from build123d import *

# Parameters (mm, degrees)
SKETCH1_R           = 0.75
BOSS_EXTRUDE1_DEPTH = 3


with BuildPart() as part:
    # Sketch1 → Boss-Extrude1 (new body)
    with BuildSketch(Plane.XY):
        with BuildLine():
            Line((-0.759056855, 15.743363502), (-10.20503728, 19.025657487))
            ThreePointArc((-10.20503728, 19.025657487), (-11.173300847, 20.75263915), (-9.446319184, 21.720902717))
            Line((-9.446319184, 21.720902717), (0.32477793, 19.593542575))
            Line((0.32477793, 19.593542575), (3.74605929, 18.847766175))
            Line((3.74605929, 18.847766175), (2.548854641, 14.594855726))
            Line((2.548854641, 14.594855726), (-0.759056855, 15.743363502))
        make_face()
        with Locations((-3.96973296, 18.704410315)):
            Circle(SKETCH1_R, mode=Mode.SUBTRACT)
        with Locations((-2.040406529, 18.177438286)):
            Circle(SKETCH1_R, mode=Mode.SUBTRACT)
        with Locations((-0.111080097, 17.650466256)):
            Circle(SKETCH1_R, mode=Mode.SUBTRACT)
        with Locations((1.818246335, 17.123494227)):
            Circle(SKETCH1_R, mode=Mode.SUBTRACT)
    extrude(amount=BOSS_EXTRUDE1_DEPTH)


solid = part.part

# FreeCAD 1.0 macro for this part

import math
import FreeCAD as App
import Part
import Sketcher
Q = App.Units.Quantity

doc = App.newDocument("Part")
body = doc.addObject("PartDesign::Body", "Body")

# Sketch on XY plane
sketch1 = body.newObject("Sketcher::SketchObject", "Sketch")
sketch1.AttachmentSupport = (doc.getObject("XY_Plane"), [""])
sketch1.MapMode = "FlatFace"
sketch1.addGeometry([
    Part.LineSegment(App.Vector(-10.205037, 19.025657, 0), App.Vector(-0.759057, 15.743364, 0)),  # 0
    Part.LineSegment(App.Vector(-0.759057, 15.743364, 0), App.Vector(2.548855, 14.594856, 0)),  # 1
    Part.LineSegment(App.Vector(2.548855, 14.594856, 0), App.Vector(3.746059, 18.847766, 0)),  # 2
    Part.LineSegment(App.Vector(3.746059, 18.847766, 0), App.Vector(0.324778, 19.593543, 0)),  # 3
    Part.LineSegment(App.Vector(0.324778, 19.593543, 0), App.Vector(-9.446319, 21.720903, 0)),  # 4
    Part.ArcOfCircle(Part.Circle(App.Vector(-9.825678, 20.37328, 0), App.Vector(0, 0, 1), 1.4), math.radians(74.27796), math.radians(254.27796)),  # 5
    Part.Circle(App.Vector(1.818246, 17.123494, 0), App.Vector(0, 0, 1), 0.75),  # 6
    Part.Circle(App.Vector(-0.11108, 17.650466, 0), App.Vector(0, 0, 1), 0.75),  # 7
    Part.Circle(App.Vector(-2.040407, 18.177438, 0), App.Vector(0, 0, 1), 0.75),  # 8
    Part.Circle(App.Vector(-3.969733, 18.70441, 0), App.Vector(0, 0, 1), 0.75),  # 9
], False)
sketch1.addConstraint([
    Sketcher.Constraint("Coincident", 0, 2, 1, 1),
    Sketcher.Constraint("Coincident", 1, 2, 2, 1),
    Sketcher.Constraint("Coincident", 2, 2, 3, 1),
    Sketcher.Constraint("Coincident", 3, 2, 4, 1),
    Sketcher.Constraint("Coincident", 4, 2, 5, 1),
    Sketcher.Constraint("Coincident", 5, 2, 0, 1),
    Sketcher.Constraint("Equal", 6, 7),
    Sketcher.Constraint("Equal", 7, 8),
    Sketcher.Constraint("Equal", 8, 9),
    Sketcher.Constraint("Equal", 1, 3),
    Sketcher.Constraint("Equal", 0, 4),
    Sketcher.Constraint("Diameter", 6, Q("1.5 mm")),
    Sketcher.Constraint("Radius", 5, Q("1.4 mm")),
    Sketcher.Constraint("Distance", 0, Q("10 mm")),
    Sketcher.Constraint("DistanceX", 5, 3, 7, 3, Q("9.714598 mm")),
    Sketcher.Constraint("DistanceY", 7, 3, 2, 2, Q("1.1973 mm")),
    Sketcher.Constraint("Distance", 1, Q("3.501621 mm")),
    Sketcher.Constraint("DistanceX", 5, 3, -1, 1, Q("9.825678 mm")),
    Sketcher.Constraint("DistanceY", -1, 1, 5, 3, Q("20.37328 mm")),
    Sketcher.Constraint("DistanceY", -1, 1, 8, 3, Q("18.177438 mm")),
    Sketcher.Constraint("DistanceY", -1, 1, 9, 3, Q("18.70441 mm")),
    Sketcher.Constraint("DistanceX", -1, 1, 2, 2, Q("3.746059 mm")),
    Sketcher.Constraint("DistanceX", 4, 2, -1, 1, Q("9.446319 mm")),
    Sketcher.Constraint("DistanceX", 5, 3, 8, 3, Q("7.785272 mm")),
    Sketcher.Constraint("DistanceX", 9, 3, 6, 3, Q("5.787979 mm")),
    Sketcher.Constraint("DistanceX", 8, 3, 0, 2, Q("1.28135 mm")),
    Sketcher.Constraint("DistanceY", 0, 2, 6, 3, Q("1.380131 mm")),
    Sketcher.Constraint("DistanceX", 6, 3, 1, 2, Q("0.730608 mm")),
    Sketcher.Constraint("DistanceY", 1, 2, 6, 3, Q("2.528639 mm")),
    Sketcher.Constraint("DistanceY", 1, 2, 7, 3, Q("3.055611 mm")),
    Sketcher.Constraint("DistanceX", 7, 3, 3, 2, Q("0.435858 mm")),
])
pad1 = body.newObject("PartDesign::Pad", "Pad")
pad1.Profile = sketch1
pad1.Length = 3

doc.recompute()
